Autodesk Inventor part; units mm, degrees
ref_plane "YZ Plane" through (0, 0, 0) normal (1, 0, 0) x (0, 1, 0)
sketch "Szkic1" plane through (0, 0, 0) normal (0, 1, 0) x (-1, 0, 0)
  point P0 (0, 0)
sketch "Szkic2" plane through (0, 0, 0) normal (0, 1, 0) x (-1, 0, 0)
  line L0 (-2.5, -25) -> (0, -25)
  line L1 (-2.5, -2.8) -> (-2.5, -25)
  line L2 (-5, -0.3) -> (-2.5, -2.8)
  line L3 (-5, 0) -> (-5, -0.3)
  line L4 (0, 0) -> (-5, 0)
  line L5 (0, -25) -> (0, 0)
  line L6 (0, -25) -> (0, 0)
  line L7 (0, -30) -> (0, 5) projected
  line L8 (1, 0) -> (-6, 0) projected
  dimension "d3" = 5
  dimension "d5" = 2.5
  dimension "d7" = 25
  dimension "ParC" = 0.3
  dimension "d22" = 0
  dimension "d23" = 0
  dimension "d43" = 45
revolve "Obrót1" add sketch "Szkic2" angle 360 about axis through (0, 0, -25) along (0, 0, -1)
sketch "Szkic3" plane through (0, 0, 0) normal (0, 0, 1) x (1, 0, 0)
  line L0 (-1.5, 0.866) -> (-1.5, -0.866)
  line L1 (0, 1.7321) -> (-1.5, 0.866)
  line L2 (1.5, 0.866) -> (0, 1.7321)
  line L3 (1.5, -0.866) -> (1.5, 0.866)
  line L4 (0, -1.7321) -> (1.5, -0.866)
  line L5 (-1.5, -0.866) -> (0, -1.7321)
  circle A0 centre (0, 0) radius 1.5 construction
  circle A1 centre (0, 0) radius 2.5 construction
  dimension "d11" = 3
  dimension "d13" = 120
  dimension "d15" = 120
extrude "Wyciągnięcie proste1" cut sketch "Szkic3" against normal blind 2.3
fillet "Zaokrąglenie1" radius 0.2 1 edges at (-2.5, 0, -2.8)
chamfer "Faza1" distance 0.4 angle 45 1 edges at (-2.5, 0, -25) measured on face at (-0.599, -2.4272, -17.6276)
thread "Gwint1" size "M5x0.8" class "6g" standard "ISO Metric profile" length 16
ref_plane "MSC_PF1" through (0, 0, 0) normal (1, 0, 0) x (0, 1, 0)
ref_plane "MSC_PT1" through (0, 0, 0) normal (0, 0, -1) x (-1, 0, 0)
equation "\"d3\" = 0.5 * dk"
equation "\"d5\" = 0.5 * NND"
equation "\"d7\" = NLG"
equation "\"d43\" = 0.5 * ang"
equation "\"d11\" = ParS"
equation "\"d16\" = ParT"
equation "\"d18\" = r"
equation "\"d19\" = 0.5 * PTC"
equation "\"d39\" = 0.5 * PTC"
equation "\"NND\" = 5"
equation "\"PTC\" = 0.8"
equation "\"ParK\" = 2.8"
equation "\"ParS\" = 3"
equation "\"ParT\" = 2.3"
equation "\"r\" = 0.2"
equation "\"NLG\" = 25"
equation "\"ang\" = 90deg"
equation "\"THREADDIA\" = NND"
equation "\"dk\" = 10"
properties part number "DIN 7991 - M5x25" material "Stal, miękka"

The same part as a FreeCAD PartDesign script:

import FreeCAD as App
import Part
import Sketcher
from FreeCAD import Vector


def edges_at(feature, points):
    """Names of the edges that pass closest to the given points."""
    edges = feature.Shape.Edges
    near = lambda p: min(range(len(edges)), key=lambda i: edges[i].distToShape(Part.Vertex(*p))[0])
    return sorted({f"Edge{near(p) + 1}" for p in points})


def add_polygon(sketch, points):
    """Adds a closed chain of lines whose ends are joined by coincident constraints."""
    first, n = sketch.GeometryCount, len(points)
    for a, b in zip(points, points[1:] + points[:1]):
        sketch.addGeometry(Part.LineSegment(App.Vector(*a, 0), App.Vector(*b, 0)), False)
    for i in range(n):
        sketch.addConstraint(Sketcher.Constraint("Coincident", first + i, 2, first + (i + 1) % n, 1))

doc = App.newDocument("Part")
body = doc.addObject("PartDesign::Body", "Body")

# Sketch on XZ plane
sketch1 = body.newObject("Sketcher::SketchObject", "Sketch")
sketch1.AttachmentSupport = (doc.getObject("XZ_Plane"), [""])
sketch1.MapMode = "FlatFace"
add_polygon(sketch1, [(2.5, -2.8), (2.5, -25), (0, -25), (0, 0), (5, 0), (5, -0.3)])  # lines 0-5
sketch1.addConstraint(Sketcher.Constraint("Vertical", 0))
sketch1.addConstraint(Sketcher.Constraint("Horizontal", 1))
sketch1.addConstraint(Sketcher.Constraint("Vertical", 2))
sketch1.addConstraint(Sketcher.Constraint("Horizontal", 3))
sketch1.addConstraint(Sketcher.Constraint("Vertical", 4))
sketch1.addConstraint(Sketcher.Constraint("Coincident", 2, 2, -1, 1))
sketch1.addConstraint(Sketcher.Constraint("DistanceX", 3, 1, 3, 2, 5.0))
sketch1.addConstraint(Sketcher.Constraint("DistanceY", 2, 1, 2, 2, 25.0))
sketch1.addConstraint(Sketcher.Constraint("DistanceX", 1, 2, 1, 1, 2.5))
sketch1.addConstraint(Sketcher.Constraint("DistanceY", 4, 2, 4, 1, 0.3))
sketch1.addConstraint(Sketcher.Constraint("DistanceY", 5, 2, 4, 2, 2.5))
revolution = body.newObject("PartDesign::Revolution", "Revolution")
revolution.Profile = sketch1
revolution.ReferenceAxis = (sketch1, ["V_Axis"])
revolution.Angle = 360

# Sketch on XY plane
sketch2 = body.newObject("Sketcher::SketchObject", "Sketch001")
sketch2.AttachmentSupport = (doc.getObject("XY_Plane"), [""])
sketch2.MapMode = "FlatFace"
add_polygon(sketch2, [(0, 1.7321), (-1.5, 0.866), (-1.5, -0.866), (0, -1.7321), (1.5, -0.866), (1.5, 0.866)])  # lines 0-5
sketch2.addConstraint(Sketcher.Constraint("Vertical", 1))
sketch2.addConstraint(Sketcher.Constraint("Vertical", 4))
sketch2.addConstraint(Sketcher.Constraint("Symmetric", 0, 2, 3, 2, -1, 1))
sketch2.addConstraint(Sketcher.Constraint("Symmetric", 2, 2, 5, 2, -1, 1))
sketch2.addConstraint(Sketcher.Constraint("PointOnObject", 2, 2, -2))
sketch2.addConstraint(Sketcher.Constraint("Parallel", 2, 5))
sketch2.addConstraint(Sketcher.Constraint("Horizontal", 1, 2, 3, 2))
sketch2.addConstraint(Sketcher.Constraint("DistanceX", 1, 2, 3, 2, 3.0))
sketch2.addConstraint(Sketcher.Constraint("DistanceY", 1, 2, 1, 1, 1.732))
sketch2.addConstraint(Sketcher.Constraint("Distance", 0, 1.732))
pocket1 = body.newObject("PartDesign::Pocket", "Pocket")
pocket1.Profile = sketch2
pocket1.Length = 2.3
doc.recompute()

fillet = body.newObject("PartDesign::Fillet", "Fillet")
fillet.Base = (pocket1, edges_at(pocket1, [(-2.5, 0, -2.8)]))
fillet.Radius = 0.2
doc.recompute()

chamfer = body.newObject("PartDesign::Chamfer", "Chamfer")
chamfer.Base = (fillet, edges_at(fillet, [(-2.5, 0, -25)]))
chamfer.Size = 0.4

doc.recompute()
